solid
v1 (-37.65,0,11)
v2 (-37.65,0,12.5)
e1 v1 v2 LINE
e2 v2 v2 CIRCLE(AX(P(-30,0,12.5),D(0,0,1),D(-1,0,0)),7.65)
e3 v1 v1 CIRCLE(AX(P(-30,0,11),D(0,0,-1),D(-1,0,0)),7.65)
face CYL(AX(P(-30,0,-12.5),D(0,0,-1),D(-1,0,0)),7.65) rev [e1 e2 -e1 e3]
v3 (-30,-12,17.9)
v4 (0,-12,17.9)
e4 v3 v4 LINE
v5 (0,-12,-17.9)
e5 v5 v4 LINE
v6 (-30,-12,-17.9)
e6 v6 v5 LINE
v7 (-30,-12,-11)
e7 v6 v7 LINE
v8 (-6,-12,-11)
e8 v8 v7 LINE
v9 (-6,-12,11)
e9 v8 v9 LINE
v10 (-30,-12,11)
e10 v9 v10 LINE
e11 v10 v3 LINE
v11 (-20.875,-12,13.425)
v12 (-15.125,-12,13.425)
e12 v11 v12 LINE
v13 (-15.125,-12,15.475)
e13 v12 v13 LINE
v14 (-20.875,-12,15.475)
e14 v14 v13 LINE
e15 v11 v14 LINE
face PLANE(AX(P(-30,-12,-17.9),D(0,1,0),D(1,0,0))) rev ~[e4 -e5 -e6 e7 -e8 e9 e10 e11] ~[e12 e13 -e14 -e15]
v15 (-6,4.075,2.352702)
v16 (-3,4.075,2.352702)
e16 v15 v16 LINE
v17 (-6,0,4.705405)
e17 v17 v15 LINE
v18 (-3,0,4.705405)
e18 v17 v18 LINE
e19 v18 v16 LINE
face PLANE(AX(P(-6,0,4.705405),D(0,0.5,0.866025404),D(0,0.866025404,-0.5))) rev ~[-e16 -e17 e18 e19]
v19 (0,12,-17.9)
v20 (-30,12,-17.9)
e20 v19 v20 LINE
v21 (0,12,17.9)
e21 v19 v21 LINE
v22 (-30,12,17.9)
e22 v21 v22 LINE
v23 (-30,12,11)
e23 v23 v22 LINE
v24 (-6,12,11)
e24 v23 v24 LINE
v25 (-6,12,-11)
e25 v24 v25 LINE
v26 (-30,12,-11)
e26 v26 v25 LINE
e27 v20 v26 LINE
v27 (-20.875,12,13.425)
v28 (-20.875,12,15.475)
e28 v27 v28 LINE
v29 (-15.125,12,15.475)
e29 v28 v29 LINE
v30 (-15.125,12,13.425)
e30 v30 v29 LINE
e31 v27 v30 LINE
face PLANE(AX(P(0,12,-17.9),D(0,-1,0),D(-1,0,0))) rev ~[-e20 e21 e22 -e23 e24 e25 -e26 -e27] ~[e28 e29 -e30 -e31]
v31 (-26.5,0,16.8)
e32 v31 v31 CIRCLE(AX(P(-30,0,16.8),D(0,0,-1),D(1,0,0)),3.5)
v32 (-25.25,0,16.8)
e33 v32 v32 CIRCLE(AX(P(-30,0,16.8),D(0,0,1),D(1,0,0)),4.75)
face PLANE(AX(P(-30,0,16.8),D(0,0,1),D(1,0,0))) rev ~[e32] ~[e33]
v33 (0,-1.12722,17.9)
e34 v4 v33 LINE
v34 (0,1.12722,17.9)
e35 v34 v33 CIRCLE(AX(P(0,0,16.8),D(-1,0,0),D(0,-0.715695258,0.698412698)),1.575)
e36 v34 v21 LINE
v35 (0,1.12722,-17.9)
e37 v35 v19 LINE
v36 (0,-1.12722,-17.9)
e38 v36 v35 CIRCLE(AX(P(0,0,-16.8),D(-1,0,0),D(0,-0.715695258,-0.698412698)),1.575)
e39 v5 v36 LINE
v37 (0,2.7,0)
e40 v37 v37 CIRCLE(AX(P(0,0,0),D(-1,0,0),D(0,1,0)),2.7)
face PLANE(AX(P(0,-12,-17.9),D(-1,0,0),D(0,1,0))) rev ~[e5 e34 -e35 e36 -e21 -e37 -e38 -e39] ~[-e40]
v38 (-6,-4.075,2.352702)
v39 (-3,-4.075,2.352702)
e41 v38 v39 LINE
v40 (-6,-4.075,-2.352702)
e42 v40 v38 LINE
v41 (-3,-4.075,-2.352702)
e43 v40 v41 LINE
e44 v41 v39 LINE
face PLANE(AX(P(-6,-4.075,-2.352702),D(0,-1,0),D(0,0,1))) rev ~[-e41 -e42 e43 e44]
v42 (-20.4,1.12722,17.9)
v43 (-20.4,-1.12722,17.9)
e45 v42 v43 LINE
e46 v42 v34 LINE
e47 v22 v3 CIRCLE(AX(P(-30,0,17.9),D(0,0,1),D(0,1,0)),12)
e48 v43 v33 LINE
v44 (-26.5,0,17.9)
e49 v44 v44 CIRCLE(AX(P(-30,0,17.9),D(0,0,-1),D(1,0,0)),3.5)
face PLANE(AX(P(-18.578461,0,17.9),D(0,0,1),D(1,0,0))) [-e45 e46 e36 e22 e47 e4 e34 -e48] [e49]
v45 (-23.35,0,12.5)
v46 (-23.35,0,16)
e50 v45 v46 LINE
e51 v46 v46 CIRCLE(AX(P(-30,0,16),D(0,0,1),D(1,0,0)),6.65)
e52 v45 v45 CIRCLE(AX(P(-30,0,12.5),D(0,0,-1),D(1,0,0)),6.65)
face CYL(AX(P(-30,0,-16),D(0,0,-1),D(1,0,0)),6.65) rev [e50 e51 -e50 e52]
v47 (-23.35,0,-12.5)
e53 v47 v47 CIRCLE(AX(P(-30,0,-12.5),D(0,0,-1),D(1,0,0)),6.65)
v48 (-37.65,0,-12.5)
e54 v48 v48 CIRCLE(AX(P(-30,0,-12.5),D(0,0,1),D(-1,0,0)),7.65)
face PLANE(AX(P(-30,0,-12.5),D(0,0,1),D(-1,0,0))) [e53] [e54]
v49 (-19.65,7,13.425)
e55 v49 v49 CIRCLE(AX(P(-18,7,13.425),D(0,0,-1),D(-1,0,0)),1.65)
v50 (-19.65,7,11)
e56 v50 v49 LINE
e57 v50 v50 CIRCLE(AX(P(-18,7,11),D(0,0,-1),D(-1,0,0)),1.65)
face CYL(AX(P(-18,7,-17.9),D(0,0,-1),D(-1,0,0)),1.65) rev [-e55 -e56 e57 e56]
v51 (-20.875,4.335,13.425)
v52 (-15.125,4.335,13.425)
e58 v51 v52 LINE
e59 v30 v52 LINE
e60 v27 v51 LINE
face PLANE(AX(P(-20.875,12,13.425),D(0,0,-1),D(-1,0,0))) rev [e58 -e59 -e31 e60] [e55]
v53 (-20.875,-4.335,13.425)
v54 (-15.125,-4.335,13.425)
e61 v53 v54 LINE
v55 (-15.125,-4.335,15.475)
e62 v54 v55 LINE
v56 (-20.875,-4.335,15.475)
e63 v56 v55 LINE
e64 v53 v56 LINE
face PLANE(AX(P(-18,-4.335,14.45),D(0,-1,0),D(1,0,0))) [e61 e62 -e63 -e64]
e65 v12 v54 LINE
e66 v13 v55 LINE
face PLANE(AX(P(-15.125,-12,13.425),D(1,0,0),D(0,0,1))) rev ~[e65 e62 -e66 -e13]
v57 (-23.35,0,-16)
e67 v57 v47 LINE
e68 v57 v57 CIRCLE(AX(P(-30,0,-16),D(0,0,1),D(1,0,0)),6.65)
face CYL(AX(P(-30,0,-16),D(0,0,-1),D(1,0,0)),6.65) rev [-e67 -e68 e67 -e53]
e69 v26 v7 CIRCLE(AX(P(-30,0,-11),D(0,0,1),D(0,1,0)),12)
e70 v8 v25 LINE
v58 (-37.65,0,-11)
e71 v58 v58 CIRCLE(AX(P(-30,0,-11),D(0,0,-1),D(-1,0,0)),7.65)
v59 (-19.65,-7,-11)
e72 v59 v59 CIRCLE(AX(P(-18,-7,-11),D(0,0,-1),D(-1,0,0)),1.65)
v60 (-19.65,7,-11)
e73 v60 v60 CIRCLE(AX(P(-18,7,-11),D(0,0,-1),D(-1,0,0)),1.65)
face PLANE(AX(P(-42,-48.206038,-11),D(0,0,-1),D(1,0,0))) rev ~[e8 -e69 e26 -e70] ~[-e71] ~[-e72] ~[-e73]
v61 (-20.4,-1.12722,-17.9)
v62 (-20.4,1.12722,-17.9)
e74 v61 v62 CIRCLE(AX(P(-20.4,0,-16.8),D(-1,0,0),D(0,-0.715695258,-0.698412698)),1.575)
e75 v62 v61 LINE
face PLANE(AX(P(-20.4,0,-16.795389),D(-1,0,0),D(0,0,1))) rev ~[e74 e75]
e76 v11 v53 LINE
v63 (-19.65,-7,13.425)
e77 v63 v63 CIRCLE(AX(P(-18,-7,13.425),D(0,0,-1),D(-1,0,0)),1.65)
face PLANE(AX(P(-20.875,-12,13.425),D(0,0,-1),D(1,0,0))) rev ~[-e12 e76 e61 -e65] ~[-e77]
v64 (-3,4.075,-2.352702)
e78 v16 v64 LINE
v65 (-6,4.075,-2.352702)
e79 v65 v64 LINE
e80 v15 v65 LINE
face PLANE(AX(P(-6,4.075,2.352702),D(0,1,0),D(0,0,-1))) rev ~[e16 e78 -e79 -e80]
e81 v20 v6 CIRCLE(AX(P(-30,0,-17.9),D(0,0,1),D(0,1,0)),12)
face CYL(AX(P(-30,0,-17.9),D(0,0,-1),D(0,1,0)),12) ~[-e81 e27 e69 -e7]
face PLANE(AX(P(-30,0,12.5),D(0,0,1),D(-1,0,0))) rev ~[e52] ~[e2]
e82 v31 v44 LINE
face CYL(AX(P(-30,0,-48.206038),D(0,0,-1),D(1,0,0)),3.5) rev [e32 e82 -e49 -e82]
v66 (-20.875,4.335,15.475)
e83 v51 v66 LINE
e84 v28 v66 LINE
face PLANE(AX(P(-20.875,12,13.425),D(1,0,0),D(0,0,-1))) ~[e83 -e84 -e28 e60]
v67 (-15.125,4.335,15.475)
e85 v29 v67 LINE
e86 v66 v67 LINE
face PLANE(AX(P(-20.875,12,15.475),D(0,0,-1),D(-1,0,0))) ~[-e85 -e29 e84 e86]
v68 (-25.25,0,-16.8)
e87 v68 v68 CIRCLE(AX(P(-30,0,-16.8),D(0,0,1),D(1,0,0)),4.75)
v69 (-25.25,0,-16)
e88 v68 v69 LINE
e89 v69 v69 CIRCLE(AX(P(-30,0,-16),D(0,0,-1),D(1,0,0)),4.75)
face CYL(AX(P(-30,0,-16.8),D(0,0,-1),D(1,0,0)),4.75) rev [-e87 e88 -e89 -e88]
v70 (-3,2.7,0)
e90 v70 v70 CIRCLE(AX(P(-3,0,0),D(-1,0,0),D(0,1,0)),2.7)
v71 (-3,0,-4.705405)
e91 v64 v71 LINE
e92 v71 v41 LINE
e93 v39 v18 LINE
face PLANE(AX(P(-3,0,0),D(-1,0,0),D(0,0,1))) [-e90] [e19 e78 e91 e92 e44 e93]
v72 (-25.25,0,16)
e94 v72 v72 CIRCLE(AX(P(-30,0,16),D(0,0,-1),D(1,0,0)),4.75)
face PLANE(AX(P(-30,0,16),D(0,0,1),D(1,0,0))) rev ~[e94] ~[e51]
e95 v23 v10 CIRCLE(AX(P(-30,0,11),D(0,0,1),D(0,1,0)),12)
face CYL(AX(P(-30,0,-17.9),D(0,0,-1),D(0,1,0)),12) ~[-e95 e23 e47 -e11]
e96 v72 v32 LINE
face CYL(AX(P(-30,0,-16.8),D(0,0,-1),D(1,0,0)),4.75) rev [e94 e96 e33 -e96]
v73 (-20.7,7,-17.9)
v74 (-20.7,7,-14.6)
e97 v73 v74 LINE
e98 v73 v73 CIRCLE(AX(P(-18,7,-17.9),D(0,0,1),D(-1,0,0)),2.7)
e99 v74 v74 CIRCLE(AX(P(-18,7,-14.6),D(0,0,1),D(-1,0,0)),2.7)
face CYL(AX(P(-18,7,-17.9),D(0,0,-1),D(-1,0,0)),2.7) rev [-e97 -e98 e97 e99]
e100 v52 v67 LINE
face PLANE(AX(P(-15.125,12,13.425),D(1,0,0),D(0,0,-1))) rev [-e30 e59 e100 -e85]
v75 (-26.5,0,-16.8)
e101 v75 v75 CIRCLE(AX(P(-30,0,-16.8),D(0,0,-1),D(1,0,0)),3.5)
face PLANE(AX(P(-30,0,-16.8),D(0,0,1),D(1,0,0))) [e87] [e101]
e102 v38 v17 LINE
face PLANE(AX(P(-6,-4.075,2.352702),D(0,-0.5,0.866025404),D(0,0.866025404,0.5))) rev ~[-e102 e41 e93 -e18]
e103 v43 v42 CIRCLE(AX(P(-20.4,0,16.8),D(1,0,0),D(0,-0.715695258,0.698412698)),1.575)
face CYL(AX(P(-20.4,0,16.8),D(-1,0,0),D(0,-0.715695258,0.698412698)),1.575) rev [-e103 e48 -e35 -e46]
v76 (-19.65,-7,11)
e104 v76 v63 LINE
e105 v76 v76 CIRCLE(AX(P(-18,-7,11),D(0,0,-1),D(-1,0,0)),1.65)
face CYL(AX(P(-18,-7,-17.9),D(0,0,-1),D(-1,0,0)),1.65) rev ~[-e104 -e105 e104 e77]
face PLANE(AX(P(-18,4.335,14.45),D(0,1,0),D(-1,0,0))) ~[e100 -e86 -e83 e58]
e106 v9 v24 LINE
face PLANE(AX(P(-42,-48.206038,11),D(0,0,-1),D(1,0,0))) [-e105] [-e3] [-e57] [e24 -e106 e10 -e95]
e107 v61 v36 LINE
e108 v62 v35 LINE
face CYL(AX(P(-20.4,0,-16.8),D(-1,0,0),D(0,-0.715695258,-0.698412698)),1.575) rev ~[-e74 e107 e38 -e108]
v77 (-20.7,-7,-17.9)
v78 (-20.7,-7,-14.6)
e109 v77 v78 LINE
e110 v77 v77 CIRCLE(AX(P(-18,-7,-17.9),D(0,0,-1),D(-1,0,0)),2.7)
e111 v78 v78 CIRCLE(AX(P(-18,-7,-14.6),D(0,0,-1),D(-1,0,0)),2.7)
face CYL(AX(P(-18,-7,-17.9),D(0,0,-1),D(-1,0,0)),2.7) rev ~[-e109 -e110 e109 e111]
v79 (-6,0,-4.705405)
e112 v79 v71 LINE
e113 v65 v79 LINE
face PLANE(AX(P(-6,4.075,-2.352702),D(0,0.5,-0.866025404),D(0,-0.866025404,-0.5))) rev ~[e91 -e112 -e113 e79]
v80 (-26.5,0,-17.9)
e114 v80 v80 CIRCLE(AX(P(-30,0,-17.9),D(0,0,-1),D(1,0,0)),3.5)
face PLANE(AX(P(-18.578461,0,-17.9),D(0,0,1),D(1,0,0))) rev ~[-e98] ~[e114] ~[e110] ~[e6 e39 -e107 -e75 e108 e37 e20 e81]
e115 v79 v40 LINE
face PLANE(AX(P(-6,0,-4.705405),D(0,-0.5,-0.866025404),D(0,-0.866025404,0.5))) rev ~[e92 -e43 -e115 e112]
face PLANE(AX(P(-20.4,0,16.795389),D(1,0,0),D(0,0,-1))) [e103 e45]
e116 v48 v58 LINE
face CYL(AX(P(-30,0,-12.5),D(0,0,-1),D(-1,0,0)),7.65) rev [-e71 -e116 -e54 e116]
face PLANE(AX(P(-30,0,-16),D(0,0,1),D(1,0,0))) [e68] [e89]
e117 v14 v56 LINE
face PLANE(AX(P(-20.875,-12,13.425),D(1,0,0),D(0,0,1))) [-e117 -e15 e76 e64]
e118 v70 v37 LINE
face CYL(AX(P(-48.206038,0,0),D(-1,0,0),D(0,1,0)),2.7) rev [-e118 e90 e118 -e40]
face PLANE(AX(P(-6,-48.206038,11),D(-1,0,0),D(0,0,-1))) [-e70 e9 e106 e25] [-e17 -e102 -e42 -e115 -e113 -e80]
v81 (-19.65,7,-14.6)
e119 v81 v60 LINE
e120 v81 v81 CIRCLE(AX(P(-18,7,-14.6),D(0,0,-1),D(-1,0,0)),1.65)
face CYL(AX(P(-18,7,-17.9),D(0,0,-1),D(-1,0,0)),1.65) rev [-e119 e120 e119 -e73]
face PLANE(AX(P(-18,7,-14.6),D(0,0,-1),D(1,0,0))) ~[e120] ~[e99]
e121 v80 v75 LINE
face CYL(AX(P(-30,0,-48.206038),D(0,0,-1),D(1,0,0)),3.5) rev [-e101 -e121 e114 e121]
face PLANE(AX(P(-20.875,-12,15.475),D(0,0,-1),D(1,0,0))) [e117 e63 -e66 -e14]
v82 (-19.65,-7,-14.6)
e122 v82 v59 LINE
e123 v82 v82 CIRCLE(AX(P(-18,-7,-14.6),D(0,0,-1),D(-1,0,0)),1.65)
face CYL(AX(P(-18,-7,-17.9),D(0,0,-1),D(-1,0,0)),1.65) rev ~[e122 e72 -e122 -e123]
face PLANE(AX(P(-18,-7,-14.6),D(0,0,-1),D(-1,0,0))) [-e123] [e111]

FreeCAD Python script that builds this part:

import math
import FreeCAD as App
import Part
import Sketcher
from FreeCAD import Vector
Q = App.Units.Quantity

doc = App.newDocument("Part")
body = doc.addObject("PartDesign::Body", "Body")

# Sketch on XY plane
sketch1 = doc.addObject("Sketcher::SketchObject", "Sketch")
body.addObject(sketch1)
sketch1.AttachmentSupport = (doc.XY_Plane, [""])
sketch1.MapMode = "FlatFace"
sketch1.addGeometry([
    Part.LineSegment(Vector(-30, -12, 0), Vector(0, -12, 0)),
    Part.LineSegment(Vector(0, -12, 0), Vector(0, 12, 0)),
    Part.LineSegment(Vector(0, 12, 0), Vector(-30, 12, 0)),
    Part.ArcOfCircle(Part.Circle(Vector(-30, 0, 0), Vector(0, 0, 1), 12), math.radians(90), math.radians(270)),
], False)
sketch1.addConstraint([
    Sketcher.Constraint("Coincident", 0, 2, 1, 1),
    Sketcher.Constraint("Coincident", 1, 2, 2, 1),
    Sketcher.Constraint("Tangent", 2, 2, 3, 1),
    Sketcher.Constraint("Tangent", 3, 2, 0, 1),
    Sketcher.Constraint("Horizontal", 0),
    Sketcher.Constraint("Vertical", 1),
    Sketcher.Constraint("Horizontal", 2),
    Sketcher.Constraint("Symmetric", 0, 2, 1, 2, -1, 1),
    Sketcher.Constraint("Radius", 3, Q("12 mm")),
    Sketcher.Constraint("DistanceX", 0, 1, 0, 2, Q("30 mm")),
])
pad1 = doc.addObject("PartDesign::Pad", "Pad")
body.addObject(pad1)
pad1.Profile = sketch1
pad1.Type = "TwoLengths"
pad1.Length = 17.9
pad1.Length2 = 17.9

# Sketch on XZ plane
sketch2 = doc.addObject("Sketcher::SketchObject", "Sketch001")
body.addObject(sketch2)
sketch2.AttachmentSupport = (doc.XZ_Plane, [""])
sketch2.MapMode = "FlatFace"
sketch2.addGeometry([
    Part.LineSegment(Vector(-42, -11, 0), Vector(-42, 11, 0)),
    Part.LineSegment(Vector(-42, 11, 0), Vector(-6, 11, 0)),
    Part.LineSegment(Vector(-6, 11, 0), Vector(-6, -11, 0)),
    Part.LineSegment(Vector(-6, -11, 0), Vector(-42, -11, 0)),
], False)
sketch2.addConstraint([
    Sketcher.Constraint("Coincident", 0, 2, 1, 1),
    Sketcher.Constraint("Coincident", 1, 2, 2, 1),
    Sketcher.Constraint("Coincident", 2, 2, 3, 1),
    Sketcher.Constraint("Coincident", 3, 2, 0, 1),
    Sketcher.Constraint("Vertical", 0),
    Sketcher.Constraint("Horizontal", 1),
    Sketcher.Constraint("Vertical", 2),
    Sketcher.Constraint("Horizontal", 3),
    Sketcher.Constraint("DistanceX", 1, 1, 1, 2, Q("36 mm")),
    Sketcher.Constraint("DistanceY", 0, 1, 0, 2, Q("22 mm")),
    Sketcher.Constraint("DistanceX", 0, 2, -1, 1, Q("42 mm")),
    Sketcher.Constraint("DistanceY", -1, 1, 0, 2, Q("11 mm")),
])
pocket1 = doc.addObject("PartDesign::Pocket", "Pocket")
body.addObject(pocket1)
pocket1.Profile = sketch2
pocket1.Type = "ThroughAll"
pocket1.Midplane = True

# Sketch on XY plane
sketch3 = doc.addObject("Sketcher::SketchObject", "Sketch002")
body.addObject(sketch3)
sketch3.AttachmentSupport = (doc.XY_Plane, [""])
sketch3.MapMode = "FlatFace"
sketch3.addGeometry(Part.Circle(Vector(-30, 0, 0), Vector(0, 0, 1), 8), False)
sketch3.addConstraint([
    Sketcher.Constraint("PointOnObject", 0, 3, -1),
    Sketcher.Constraint("Diameter", 0, Q("15.3 mm")),
    Sketcher.Constraint("DistanceX", 0, 3, -1, 1, Q("30 mm")),
])
pocket2 = doc.addObject("PartDesign::Pocket", "Pocket001")
body.addObject(pocket2)
pocket2.Profile = sketch3
pocket2.Type = "TwoLengths"
pocket2.Length = 12.5
pocket2.Length2 = 12.5
pocket2.Reversed = True

# Sketch on XY plane
sketch4 = doc.addObject("Sketcher::SketchObject", "Sketch003")
body.addObject(sketch4)
sketch4.AttachmentSupport = (doc.XY_Plane, [""])
sketch4.MapMode = "FlatFace"
sketch4.addGeometry(Part.Circle(Vector(-30, 0, 0), Vector(0, 0, 1), 7), False)
sketch4.addConstraint([
    Sketcher.Constraint("PointOnObject", 0, 3, -1),
    Sketcher.Constraint("Diameter", 0, Q("13.3 mm")),
    Sketcher.Constraint("DistanceX", 0, 3, -1, 1, Q("30 mm")),
])
pocket3 = doc.addObject("PartDesign::Pocket", "Pocket002")
body.addObject(pocket3)
pocket3.Profile = sketch4
pocket3.Type = "TwoLengths"
pocket3.Length = 16
pocket3.Length2 = 16
pocket3.Reversed = True

# Sketch on XY plane
sketch5 = doc.addObject("Sketcher::SketchObject", "Sketch004")
body.addObject(sketch5)
sketch5.AttachmentSupport = (doc.XY_Plane, [""])
sketch5.MapMode = "FlatFace"
sketch5.addGeometry(Part.Circle(Vector(-30, 0, 0), Vector(0, 0, 1), 4.8), False)
sketch5.addConstraint([
    Sketcher.Constraint("PointOnObject", 0, 3, -1),
    Sketcher.Constraint("Diameter", 0, Q("9.5 mm")),
    Sketcher.Constraint("DistanceX", 0, 3, -1, 1, Q("30 mm")),
])
pocket4 = doc.addObject("PartDesign::Pocket", "Pocket003")
body.addObject(pocket4)
pocket4.Profile = sketch5
pocket4.Type = "TwoLengths"
pocket4.Length = 16.8
pocket4.Length2 = 16.8
pocket4.Reversed = True

# Sketch on XY plane
sketch6 = doc.addObject("Sketcher::SketchObject", "Sketch005")
body.addObject(sketch6)
sketch6.AttachmentSupport = (doc.XY_Plane, [""])
sketch6.MapMode = "FlatFace"
sketch6.addGeometry(Part.Circle(Vector(-30, 0, 0), Vector(0, 0, 1), 3.5), False)
sketch6.addConstraint([
    Sketcher.Constraint("PointOnObject", 0, 3, -1),
    Sketcher.Constraint("Diameter", 0, Q("7 mm")),
    Sketcher.Constraint("DistanceX", 0, 3, -1, 1, Q("30 mm")),
])
pocket5 = doc.addObject("PartDesign::Pocket", "Pocket004")
body.addObject(pocket5)
pocket5.Profile = sketch6
pocket5.Type = "ThroughAll"
pocket5.Midplane = True

# Sketch on YZ plane
sketch7 = doc.addObject("Sketcher::SketchObject", "Sketch006")
body.addObject(sketch7)
sketch7.AttachmentSupport = (doc.YZ_Plane, [""])
sketch7.MapMode = "FlatFace"
sketch7.addGeometry([
    Part.LineSegment(Vector(1.1, 17.9, 0), Vector(-1.1, 17.9, 0)),
    Part.ArcOfCircle(Part.Circle(Vector(0, 16.8, 0), Vector(0, 0, 1), 1.6), math.radians(136), math.radians(404)),
    Part.LineSegment(Vector(-1.1, -17.9, 0), Vector(1.1, -17.9, 0)),
    Part.ArcOfCircle(Part.Circle(Vector(0, -16.8, 0), Vector(0, 0, 1), 1.6), math.radians(-44), math.radians(224)),
], False)
sketch7.addConstraint([
    Sketcher.Constraint("Coincident", 0, 1, 1, 2),
    Sketcher.Constraint("Coincident", 1, 1, 0, 2),
    Sketcher.Constraint("Coincident", 2, 1, 3, 2),
    Sketcher.Constraint("Coincident", 3, 1, 2, 2),
    Sketcher.Constraint("Horizontal", 0),
    Sketcher.Constraint("Horizontal", 2),
    Sketcher.Constraint("Equal", 1, 3),
    Sketcher.Constraint("Symmetric", 1, 3, 3, 3, -1, 1),
    Sketcher.Constraint("Symmetric", 1, 1, 2, 1, -1),
    Sketcher.Constraint("Radius", 1, Q("1.575 mm")),
    Sketcher.Constraint("DistanceY", -1, 1, 1, 3, Q("16.8 mm")),
    Sketcher.Constraint("DistanceY", -1, 1, 0, 1, Q("17.9 mm")),
])
pocket6 = doc.addObject("PartDesign::Pocket", "Pocket005")
body.addObject(pocket6)
pocket6.Profile = sketch7
pocket6.Type = "TwoLengths"
pocket6.Length = 48.206038
pocket6.Length2 = 20.4
pocket6.Reversed = True

# Sketch on YZ plane
sketch8 = doc.addObject("Sketcher::SketchObject", "Sketch007")
body.addObject(sketch8)
sketch8.AttachmentSupport = (doc.YZ_Plane, [""])
sketch8.MapMode = "FlatFace"
sketch8.addGeometry(Part.Circle(Vector(0, 0, 0), Vector(0, 0, 1), 2.7), False)
sketch8.addConstraint([
    Sketcher.Constraint("Coincident", 0, 3, -1, 1),
    Sketcher.Constraint("Diameter", 0, Q("5.4 mm")),
])
pocket7 = doc.addObject("PartDesign::Pocket", "Pocket006")
body.addObject(pocket7)
pocket7.Profile = sketch8
pocket7.Type = "ThroughAll"
pocket7.Midplane = True

# Sketch on YZ plane
sketch9 = doc.addObject("Sketcher::SketchObject", "Sketch008")
body.addObject(sketch9)
sketch9.AttachmentSupport = (doc.YZ_Plane, [""])
sketch9.MapMode = "FlatFace"
sketch9.AttachmentOffset = App.Placement(Vector(0, 0, -6), App.Rotation())
sketch9.addGeometry([
    Part.LineSegment(Vector(0, -4.7, 0), Vector(-4.1, -2.4, 0)),  # 0
    Part.LineSegment(Vector(-4.1, -2.4, 0), Vector(-4.1, 2.4, 0)),  # 1
    Part.LineSegment(Vector(-4.1, 2.4, 0), Vector(0, 4.7, 0)),  # 2
    Part.LineSegment(Vector(0, 4.7, 0), Vector(4.1, 2.4, 0)),  # 3
    Part.LineSegment(Vector(4.1, 2.4, 0), Vector(4.1, -2.4, 0)),  # 4
    Part.LineSegment(Vector(4.1, -2.4, 0), Vector(0, -4.7, 0)),  # 5
], False)
sketch9.addConstraint([
    Sketcher.Constraint("Coincident", 0, 2, 1, 1),
    Sketcher.Constraint("Coincident", 1, 2, 2, 1),
    Sketcher.Constraint("Coincident", 2, 2, 3, 1),
    Sketcher.Constraint("Coincident", 3, 2, 4, 1),
    Sketcher.Constraint("Coincident", 4, 2, 5, 1),
    Sketcher.Constraint("Coincident", 5, 2, 0, 1),
    Sketcher.Constraint("Vertical", 1),
    Sketcher.Constraint("Vertical", 4),
    Sketcher.Constraint("Symmetric", 0, 2, 3, 2, -1, 1),
    Sketcher.Constraint("Symmetric", 2, 2, 5, 2, -1, 1),
    Sketcher.Constraint("PointOnObject", 2, 2, -2),
    Sketcher.Constraint("Parallel", 2, 5),
    Sketcher.Constraint("Horizontal", 1, 2, 3, 2),
    Sketcher.Constraint("Angle", 0, Q("150 deg")),
    Sketcher.Constraint("DistanceX", 1, 2, 3, 2, Q("8.15 mm")),
    Sketcher.Constraint("DistanceY", 1, 1, 1, 2, Q("4.705405 mm")),
])
pocket8 = doc.addObject("PartDesign::Pocket", "Pocket007")
body.addObject(pocket8)
pocket8.Profile = sketch9
pocket8.Length = 3
pocket8.Reversed = True

# Sketch on XY plane
sketch10 = doc.addObject("Sketcher::SketchObject", "Sketch009")
body.addObject(sketch10)
sketch10.AttachmentSupport = (doc.XY_Plane, [""])
sketch10.MapMode = "FlatFace"
sketch10.AttachmentOffset = App.Placement(Vector(0, 0, -17.9), App.Rotation())
sketch10.addGeometry(Part.Circle(Vector(-18, -7, 0), Vector(0, 0, 1), 1.6), False)
sketch10.addConstraint([
    Sketcher.Constraint("Diameter", 0, Q("3.3 mm")),
    Sketcher.Constraint("DistanceX", 0, 3, -1, 1, Q("18 mm")),
    Sketcher.Constraint("DistanceY", 0, 3, -1, 1, Q("7 mm")),
])
pocket9 = doc.addObject("PartDesign::Pocket", "Pocket008")
body.addObject(pocket9)
pocket9.Profile = sketch10
pocket9.Length = 33.3
pocket9.Reversed = True

# Sketch on XY plane
sketch11 = doc.addObject("Sketcher::SketchObject", "Sketch010")
body.addObject(sketch11)
sketch11.AttachmentSupport = (doc.XY_Plane, [""])
sketch11.MapMode = "FlatFace"
sketch11.AttachmentOffset = App.Placement(Vector(0, 0, -17.9), App.Rotation())
sketch11.addGeometry(Part.Circle(Vector(-18, -7, 0), Vector(0, 0, 1), 2.7), False)
sketch11.addConstraint([
    Sketcher.Constraint("Diameter", 0, Q("5.4 mm")),
    Sketcher.Constraint("DistanceX", 0, 3, -1, 1, Q("18 mm")),
    Sketcher.Constraint("DistanceY", 0, 3, -1, 1, Q("7 mm")),
])
pocket10 = doc.addObject("PartDesign::Pocket", "Pocket009")
body.addObject(pocket10)
pocket10.Profile = sketch11
pocket10.Length = 3.3
pocket10.Reversed = True

# Sketch on XZ plane
sketch12 = doc.addObject("Sketcher::SketchObject", "Sketch011")
body.addObject(sketch12)
sketch12.AttachmentSupport = (doc.XZ_Plane, [""])
sketch12.MapMode = "FlatFace"
sketch12.AttachmentOffset = App.Placement(Vector(0, 0, 12), App.Rotation())
sketch12.addGeometry([
    Part.LineSegment(Vector(-20.9, 15.5, 0), Vector(-20.9, 13.4, 0)),
    Part.LineSegment(Vector(-20.9, 13.4, 0), Vector(-15.1, 13.4, 0)),
    Part.LineSegment(Vector(-15.1, 13.4, 0), Vector(-15.1, 15.5, 0)),
    Part.LineSegment(Vector(-15.1, 15.5, 0), Vector(-20.9, 15.5, 0)),
], False)
sketch12.addConstraint([
    Sketcher.Constraint("Coincident", 0, 2, 1, 1),
    Sketcher.Constraint("Coincident", 1, 2, 2, 1),
    Sketcher.Constraint("Coincident", 2, 2, 3, 1),
    Sketcher.Constraint("Coincident", 3, 2, 0, 1),
    Sketcher.Constraint("Vertical", 0),
    Sketcher.Constraint("Horizontal", 1),
    Sketcher.Constraint("Vertical", 2),
    Sketcher.Constraint("Horizontal", 3),
    Sketcher.Constraint("DistanceX", 1, 1, 1, 2, Q("5.75 mm")),
    Sketcher.Constraint("DistanceY", 0, 2, 0, 1, Q("2.05 mm")),
    Sketcher.Constraint("DistanceX", 0, 2, -1, 1, Q("20.875 mm")),
    Sketcher.Constraint("DistanceY", -1, 1, 0, 2, Q("13.425 mm")),
])
pocket11 = doc.addObject("PartDesign::Pocket", "Pocket010")
body.addObject(pocket11)
pocket11.Profile = sketch12
pocket11.Length = 7.665
doc.recompute()

mirrored = doc.addObject("PartDesign::Mirrored", "Mirrored")
body.addObject(mirrored)
mirrored.Originals = [pocket9, pocket10, pocket11]
mirrored.MirrorPlane = (doc.XZ_Plane, [""])
body.Tip = mirrored

doc.recompute()
